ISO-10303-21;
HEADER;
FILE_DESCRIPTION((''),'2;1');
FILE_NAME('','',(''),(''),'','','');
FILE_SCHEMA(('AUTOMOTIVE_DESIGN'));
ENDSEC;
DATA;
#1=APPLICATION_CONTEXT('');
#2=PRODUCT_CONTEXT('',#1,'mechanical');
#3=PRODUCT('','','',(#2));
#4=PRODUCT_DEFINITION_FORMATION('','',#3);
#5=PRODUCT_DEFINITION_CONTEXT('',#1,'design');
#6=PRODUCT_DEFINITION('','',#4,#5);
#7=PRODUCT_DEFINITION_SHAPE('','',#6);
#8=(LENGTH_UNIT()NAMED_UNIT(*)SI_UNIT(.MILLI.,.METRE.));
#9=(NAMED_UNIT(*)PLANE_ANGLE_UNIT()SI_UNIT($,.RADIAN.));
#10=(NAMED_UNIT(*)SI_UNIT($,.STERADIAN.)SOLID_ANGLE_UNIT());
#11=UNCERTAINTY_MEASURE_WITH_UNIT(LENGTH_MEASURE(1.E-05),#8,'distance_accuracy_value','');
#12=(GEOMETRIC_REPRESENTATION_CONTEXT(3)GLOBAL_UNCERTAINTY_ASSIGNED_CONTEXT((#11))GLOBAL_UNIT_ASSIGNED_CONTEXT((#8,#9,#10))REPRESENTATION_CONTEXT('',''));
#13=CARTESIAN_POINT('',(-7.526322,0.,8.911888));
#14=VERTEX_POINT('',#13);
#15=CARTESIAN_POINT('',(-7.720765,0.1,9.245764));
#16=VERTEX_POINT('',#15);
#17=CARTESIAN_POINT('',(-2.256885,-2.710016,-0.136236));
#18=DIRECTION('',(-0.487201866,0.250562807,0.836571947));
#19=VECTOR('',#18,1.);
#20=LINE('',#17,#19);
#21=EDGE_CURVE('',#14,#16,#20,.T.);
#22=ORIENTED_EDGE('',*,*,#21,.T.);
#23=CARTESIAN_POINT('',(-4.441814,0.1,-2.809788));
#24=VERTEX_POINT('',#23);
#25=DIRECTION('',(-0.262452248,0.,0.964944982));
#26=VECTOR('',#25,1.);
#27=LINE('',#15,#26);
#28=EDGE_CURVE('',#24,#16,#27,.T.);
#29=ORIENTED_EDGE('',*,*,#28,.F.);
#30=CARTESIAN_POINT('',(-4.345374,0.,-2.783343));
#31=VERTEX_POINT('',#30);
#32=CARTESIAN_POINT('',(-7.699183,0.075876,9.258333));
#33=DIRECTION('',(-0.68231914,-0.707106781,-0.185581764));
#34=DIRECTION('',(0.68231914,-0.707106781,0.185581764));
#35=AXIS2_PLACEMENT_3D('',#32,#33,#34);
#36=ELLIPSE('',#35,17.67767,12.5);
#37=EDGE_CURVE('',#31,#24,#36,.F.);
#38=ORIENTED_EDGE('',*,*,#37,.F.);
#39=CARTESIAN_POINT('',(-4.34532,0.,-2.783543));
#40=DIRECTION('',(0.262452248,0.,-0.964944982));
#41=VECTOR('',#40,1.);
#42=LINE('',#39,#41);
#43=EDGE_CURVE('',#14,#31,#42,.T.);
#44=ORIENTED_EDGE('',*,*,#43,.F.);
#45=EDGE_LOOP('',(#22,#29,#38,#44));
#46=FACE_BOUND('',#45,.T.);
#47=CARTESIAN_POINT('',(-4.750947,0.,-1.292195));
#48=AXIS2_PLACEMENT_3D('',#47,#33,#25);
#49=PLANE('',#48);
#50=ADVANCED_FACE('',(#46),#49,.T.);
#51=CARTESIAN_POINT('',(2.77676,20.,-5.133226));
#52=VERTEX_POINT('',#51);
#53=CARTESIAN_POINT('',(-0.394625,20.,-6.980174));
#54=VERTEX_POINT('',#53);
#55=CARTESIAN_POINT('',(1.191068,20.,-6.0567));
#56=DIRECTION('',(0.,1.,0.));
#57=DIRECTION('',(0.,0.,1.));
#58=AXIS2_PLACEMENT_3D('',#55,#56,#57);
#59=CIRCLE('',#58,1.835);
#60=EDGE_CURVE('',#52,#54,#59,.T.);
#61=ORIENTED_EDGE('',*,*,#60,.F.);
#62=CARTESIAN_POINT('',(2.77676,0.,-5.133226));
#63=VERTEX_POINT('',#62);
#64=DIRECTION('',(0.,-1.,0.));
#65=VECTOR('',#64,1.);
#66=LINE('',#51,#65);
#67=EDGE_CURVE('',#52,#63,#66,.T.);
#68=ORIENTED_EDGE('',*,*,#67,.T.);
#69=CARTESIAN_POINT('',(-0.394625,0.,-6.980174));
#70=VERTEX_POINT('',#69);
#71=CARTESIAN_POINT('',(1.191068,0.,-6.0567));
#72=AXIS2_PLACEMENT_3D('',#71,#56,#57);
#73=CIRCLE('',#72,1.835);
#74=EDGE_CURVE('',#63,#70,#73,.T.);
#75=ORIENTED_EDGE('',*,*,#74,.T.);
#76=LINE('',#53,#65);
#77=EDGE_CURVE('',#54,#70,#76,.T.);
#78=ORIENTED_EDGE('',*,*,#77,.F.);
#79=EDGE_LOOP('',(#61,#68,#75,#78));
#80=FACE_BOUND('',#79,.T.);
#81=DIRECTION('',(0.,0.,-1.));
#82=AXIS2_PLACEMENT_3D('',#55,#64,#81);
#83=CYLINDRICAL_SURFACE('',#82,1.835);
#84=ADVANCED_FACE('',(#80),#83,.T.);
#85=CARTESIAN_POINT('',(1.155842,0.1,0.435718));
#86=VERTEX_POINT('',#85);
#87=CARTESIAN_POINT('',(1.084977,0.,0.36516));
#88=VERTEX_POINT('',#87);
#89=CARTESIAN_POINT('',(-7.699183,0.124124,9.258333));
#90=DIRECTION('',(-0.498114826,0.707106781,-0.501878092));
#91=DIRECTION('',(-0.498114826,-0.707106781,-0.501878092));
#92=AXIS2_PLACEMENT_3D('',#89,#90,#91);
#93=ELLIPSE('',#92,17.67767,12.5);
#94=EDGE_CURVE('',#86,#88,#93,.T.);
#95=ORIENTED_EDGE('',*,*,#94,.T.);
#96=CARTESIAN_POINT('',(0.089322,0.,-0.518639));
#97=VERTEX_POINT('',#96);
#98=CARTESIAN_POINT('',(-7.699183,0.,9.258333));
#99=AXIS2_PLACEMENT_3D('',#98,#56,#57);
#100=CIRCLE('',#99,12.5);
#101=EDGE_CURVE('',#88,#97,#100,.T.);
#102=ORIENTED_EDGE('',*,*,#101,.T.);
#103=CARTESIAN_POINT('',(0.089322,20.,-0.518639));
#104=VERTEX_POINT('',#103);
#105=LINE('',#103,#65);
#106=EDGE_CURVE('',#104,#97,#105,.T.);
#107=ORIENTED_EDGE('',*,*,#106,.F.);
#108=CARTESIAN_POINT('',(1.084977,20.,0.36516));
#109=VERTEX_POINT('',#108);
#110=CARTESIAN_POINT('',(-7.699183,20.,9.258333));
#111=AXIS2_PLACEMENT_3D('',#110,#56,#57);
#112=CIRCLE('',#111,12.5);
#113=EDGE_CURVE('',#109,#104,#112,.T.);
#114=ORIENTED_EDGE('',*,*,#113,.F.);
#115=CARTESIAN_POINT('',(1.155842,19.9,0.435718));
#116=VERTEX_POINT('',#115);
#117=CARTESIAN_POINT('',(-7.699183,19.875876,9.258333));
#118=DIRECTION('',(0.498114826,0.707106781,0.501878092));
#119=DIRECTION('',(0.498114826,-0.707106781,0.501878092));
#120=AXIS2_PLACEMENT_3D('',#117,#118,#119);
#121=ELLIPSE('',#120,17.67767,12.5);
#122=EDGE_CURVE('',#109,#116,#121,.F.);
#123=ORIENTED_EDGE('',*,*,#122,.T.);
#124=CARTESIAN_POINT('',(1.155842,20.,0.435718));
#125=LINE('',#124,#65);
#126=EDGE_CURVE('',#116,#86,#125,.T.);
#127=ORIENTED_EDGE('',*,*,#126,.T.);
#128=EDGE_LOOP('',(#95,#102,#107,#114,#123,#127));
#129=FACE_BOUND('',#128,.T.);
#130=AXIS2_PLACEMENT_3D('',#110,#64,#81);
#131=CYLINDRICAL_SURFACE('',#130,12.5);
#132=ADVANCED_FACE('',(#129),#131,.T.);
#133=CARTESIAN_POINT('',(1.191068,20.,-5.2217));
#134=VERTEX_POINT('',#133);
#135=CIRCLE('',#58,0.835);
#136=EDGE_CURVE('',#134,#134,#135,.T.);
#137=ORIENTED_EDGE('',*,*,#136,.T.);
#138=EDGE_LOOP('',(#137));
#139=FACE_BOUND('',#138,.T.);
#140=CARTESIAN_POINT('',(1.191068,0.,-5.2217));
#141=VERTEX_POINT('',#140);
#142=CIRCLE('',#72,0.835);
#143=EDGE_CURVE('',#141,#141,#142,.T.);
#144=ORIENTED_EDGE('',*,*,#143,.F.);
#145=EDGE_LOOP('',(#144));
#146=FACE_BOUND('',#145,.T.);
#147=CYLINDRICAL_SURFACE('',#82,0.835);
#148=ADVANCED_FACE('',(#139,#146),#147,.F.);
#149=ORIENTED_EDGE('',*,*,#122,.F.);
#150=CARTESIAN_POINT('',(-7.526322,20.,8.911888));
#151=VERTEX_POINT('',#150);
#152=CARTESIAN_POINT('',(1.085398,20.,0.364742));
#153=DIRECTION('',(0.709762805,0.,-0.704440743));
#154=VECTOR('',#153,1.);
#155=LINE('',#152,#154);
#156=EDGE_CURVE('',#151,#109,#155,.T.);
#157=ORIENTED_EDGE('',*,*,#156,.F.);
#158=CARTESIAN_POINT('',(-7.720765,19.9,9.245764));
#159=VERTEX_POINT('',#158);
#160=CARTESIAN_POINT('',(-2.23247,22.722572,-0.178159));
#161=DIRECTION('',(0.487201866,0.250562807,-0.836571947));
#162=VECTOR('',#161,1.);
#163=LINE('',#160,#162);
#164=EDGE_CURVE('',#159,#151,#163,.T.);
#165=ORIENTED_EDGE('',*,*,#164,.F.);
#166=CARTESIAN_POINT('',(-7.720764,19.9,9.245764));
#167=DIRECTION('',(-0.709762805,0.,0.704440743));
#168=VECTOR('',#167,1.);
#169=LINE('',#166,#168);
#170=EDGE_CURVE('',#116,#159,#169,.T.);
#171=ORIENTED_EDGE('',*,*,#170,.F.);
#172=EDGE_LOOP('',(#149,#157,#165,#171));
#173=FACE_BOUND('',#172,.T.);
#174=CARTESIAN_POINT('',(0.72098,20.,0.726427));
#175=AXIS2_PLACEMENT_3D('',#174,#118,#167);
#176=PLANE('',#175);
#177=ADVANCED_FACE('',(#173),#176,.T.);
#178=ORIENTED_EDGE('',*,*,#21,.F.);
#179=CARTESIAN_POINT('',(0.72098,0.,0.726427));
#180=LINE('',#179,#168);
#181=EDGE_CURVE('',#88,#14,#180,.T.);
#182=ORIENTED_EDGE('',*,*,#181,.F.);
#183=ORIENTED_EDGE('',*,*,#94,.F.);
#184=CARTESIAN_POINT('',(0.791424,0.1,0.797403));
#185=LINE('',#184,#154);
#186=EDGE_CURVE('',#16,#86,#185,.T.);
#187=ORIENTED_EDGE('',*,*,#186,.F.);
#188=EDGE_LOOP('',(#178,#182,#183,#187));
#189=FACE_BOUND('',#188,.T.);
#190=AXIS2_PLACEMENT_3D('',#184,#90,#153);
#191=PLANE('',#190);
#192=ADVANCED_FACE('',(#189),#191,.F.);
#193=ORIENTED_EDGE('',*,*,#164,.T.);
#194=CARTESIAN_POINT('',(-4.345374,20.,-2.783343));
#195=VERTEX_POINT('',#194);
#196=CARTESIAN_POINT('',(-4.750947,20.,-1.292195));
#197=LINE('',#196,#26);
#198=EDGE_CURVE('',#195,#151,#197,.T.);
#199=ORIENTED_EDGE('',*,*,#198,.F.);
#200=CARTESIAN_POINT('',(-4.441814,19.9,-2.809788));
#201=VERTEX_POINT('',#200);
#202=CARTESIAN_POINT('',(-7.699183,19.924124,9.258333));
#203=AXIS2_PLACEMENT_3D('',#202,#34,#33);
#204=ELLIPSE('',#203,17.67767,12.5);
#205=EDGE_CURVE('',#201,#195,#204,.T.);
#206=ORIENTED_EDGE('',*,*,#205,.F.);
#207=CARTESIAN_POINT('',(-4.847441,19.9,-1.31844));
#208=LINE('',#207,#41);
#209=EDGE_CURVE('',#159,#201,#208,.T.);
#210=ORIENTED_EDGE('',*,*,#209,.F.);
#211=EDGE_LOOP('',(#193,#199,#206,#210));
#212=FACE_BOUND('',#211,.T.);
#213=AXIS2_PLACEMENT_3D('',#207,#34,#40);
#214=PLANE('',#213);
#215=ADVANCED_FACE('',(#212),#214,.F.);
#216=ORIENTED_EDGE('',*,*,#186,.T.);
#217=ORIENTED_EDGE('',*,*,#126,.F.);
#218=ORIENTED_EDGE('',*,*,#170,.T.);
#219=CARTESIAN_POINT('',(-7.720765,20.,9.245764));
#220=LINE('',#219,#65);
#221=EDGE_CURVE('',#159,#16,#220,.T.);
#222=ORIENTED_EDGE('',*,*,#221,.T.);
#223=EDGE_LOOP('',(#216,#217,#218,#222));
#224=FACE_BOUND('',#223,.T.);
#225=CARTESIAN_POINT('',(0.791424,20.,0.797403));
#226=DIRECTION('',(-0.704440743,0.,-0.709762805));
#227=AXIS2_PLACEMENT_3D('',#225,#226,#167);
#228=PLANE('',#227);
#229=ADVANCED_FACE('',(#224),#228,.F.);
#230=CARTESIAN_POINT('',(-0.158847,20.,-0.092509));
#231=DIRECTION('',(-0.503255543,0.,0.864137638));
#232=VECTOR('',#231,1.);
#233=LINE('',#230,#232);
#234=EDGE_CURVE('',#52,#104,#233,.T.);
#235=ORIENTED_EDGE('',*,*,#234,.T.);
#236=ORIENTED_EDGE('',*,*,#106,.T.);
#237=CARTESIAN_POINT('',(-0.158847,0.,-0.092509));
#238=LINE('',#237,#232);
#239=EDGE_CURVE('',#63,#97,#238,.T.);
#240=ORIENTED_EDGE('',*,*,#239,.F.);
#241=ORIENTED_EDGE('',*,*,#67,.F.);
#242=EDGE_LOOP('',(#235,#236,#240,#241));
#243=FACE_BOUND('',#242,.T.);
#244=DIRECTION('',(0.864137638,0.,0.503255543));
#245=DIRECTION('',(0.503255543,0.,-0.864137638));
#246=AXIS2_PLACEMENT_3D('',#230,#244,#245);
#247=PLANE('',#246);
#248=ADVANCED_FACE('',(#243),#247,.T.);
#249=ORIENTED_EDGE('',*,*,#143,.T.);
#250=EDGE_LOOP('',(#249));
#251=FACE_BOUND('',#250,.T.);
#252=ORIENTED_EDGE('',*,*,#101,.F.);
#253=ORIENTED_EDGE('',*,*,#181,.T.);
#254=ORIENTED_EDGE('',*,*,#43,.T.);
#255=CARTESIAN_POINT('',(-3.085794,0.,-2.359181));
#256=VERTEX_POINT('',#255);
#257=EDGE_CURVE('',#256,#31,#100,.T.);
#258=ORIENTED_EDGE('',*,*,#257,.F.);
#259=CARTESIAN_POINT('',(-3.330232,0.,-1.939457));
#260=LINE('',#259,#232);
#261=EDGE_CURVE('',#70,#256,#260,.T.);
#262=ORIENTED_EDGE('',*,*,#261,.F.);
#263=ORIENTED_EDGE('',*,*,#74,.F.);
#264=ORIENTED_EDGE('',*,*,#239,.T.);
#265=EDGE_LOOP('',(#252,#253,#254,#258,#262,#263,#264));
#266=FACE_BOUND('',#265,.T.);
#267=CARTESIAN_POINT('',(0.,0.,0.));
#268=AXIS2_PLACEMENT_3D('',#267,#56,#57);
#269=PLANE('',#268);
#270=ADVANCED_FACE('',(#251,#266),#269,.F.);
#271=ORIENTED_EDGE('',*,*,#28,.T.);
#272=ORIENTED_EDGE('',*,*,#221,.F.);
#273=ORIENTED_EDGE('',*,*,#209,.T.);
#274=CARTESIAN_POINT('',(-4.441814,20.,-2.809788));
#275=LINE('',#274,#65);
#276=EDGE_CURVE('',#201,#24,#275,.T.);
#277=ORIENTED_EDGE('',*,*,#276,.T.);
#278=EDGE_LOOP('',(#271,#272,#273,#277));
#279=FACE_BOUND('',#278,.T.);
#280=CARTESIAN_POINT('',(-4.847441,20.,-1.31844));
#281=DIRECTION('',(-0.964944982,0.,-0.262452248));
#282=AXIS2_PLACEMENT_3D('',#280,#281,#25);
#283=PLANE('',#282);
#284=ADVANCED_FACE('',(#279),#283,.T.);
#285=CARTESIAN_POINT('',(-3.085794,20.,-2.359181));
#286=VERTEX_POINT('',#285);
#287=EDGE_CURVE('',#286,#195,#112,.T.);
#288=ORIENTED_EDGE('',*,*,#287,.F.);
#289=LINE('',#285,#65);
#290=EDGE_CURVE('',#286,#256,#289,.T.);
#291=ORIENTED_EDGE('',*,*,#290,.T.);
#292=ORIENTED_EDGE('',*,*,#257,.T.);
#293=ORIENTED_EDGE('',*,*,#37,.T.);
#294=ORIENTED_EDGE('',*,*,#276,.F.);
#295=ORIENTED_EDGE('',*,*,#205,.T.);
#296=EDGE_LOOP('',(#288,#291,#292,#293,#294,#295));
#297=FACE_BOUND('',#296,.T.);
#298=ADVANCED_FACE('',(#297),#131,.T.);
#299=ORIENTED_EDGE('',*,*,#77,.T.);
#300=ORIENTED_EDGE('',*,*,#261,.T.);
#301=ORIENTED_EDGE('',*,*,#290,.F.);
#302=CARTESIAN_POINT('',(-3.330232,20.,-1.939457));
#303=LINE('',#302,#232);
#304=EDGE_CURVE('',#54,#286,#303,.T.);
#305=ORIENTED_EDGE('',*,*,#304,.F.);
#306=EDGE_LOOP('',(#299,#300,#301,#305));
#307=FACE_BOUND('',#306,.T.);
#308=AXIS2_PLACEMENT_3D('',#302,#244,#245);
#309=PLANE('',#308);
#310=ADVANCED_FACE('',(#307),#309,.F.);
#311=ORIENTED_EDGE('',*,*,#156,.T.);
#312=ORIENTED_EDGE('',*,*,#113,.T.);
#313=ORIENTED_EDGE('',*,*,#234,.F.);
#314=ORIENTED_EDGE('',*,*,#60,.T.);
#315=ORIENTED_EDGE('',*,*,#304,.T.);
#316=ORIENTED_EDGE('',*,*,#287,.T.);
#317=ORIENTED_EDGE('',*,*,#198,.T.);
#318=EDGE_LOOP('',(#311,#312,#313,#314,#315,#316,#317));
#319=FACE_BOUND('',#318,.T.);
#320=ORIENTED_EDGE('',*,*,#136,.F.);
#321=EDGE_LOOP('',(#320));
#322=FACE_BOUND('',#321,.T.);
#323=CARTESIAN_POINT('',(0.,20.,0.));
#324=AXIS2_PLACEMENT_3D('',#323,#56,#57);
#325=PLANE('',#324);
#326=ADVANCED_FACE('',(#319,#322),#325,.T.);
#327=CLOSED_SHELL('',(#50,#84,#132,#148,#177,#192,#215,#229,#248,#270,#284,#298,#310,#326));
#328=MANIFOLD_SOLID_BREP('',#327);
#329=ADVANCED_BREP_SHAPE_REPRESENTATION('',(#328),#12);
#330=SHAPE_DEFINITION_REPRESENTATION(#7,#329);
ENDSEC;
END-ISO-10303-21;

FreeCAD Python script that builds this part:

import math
import FreeCAD as App
import Part
import Sketcher

V = App.Vector
Q = App.Units.Quantity


def edges_at(feature, points):
    """Names of the edges that pass closest to the given points."""
    edges = feature.Shape.Edges
    near = lambda p: min(range(len(edges)), key=lambda i: edges[i].distToShape(Part.Vertex(*p))[0])
    return sorted({f"Edge{near(p) + 1}" for p in points})

doc = App.newDocument("Part")
body = doc.addObject("PartDesign::Body", "Body")

# Sketch on XZ plane
sketch1 = doc.addObject("Sketcher::SketchObject", "Sketch")
body.addObject(sketch1)
sketch1.AttachmentSupport = (doc.XZ_Plane, [""])
sketch1.MapMode = "FlatFace"
sketch1.addGeometry(Part.LineSegment(V(0.14, -0.61, 0), V(2.78, -5.13, 0)), False)
sketch1.addGeometry(Part.ArcOfCircle(Part.Circle(V(1.19, -6.06, 0), V(0, 0, 1), 1.83), math.radians(-150), math.radians(30)), False)
sketch1.addGeometry(Part.LineSegment(V(-0.39, -6.98, 0), V(-3.03, -2.45, 0)), False)
sketch1.addGeometry(Part.LineSegment(V(-3.03, -2.45, 0), V(-3.09, -2.36, 0)), False)
sketch1.addGeometry(Part.ArcOfCircle(Part.Circle(V(-7.7, 9.26, 0), V(0, 0, 1), 12.5), math.radians(-74.89), math.radians(-68.34)), False)
sketch1.addGeometry(Part.LineSegment(V(-4.44, -2.81, 0), V(-7.72, 9.25, 0)), False)
sketch1.addGeometry(Part.LineSegment(V(-7.72, 9.25, 0), V(1.16, 0.44, 0)), False)
sketch1.addGeometry(Part.ArcOfCircle(Part.Circle(V(-7.7, 9.26, 0), V(0, 0, 1), 12.5), math.radians(-51.46), math.radians(-44.89)), False)
sketch1.addGeometry(Part.LineSegment(V(0.09, -0.52, 0), V(0.14, -0.61, 0)), False)
sketch1.addGeometry(Part.Circle(V(1.19, -6.06, 0), V(0, 0, 1), 0.83), False)
sketch1.addConstraint(Sketcher.Constraint("Tangent", 0, 2, 1, 2))
sketch1.addConstraint(Sketcher.Constraint("Tangent", 1, 1, 2, 1))
sketch1.addConstraint(Sketcher.Constraint("Coincident", 2, 2, 3, 1))
sketch1.addConstraint(Sketcher.Constraint("Coincident", 3, 2, 4, 2))
sketch1.addConstraint(Sketcher.Constraint("Coincident", 4, 1, 5, 1))
sketch1.addConstraint(Sketcher.Constraint("Coincident", 5, 2, 6, 1))
sketch1.addConstraint(Sketcher.Constraint("Coincident", 6, 2, 7, 2))
sketch1.addConstraint(Sketcher.Constraint("Coincident", 7, 1, 8, 1))
sketch1.addConstraint(Sketcher.Constraint("Coincident", 8, 2, 0, 1))
sketch1.addConstraint(Sketcher.Constraint("Coincident", 7, 3, 4, 3))
sketch1.addConstraint(Sketcher.Constraint("Coincident", 9, 3, 1, 3))
sketch1.addConstraint(Sketcher.Constraint("Equal", 4, 7))
sketch1.addConstraint(Sketcher.Constraint("Parallel", 0, 2))
sketch1.addConstraint(Sketcher.Constraint("Parallel", 2, 3))
sketch1.addConstraint(Sketcher.Constraint("Parallel", 3, 8))
sketch1.addConstraint(Sketcher.Constraint("Radius", 4, Q("12.5 mm")))
sketch1.addConstraint(Sketcher.Constraint("Diameter", 9, Q("1.67 mm")))
sketch1.addConstraint(Sketcher.Constraint("Radius", 1, Q("1.835 mm")))
sketch1.addConstraint(Sketcher.Constraint("DistanceY", 1, 3, -1, 1, Q("6.0567 mm")))
sketch1.addConstraint(Sketcher.Constraint("DistanceX", -1, 1, 8, 2, Q("0.1424 mm")))
sketch1.addConstraint(Sketcher.Constraint("DistanceY", 2, 2, 5, 2, Q("11.6996 mm")))
sketch1.addConstraint(Sketcher.Constraint("DistanceY", 3, 2, 6, 2, Q("2.794899 mm")))
sketch1.addConstraint(Sketcher.Constraint("Distance", 6, Q("12.50644 mm")))
sketch1.addConstraint(Sketcher.Constraint("Distance", 8, Q("0.105469 mm")))
sketch1.addConstraint(Sketcher.Constraint("DistanceX", -1, 1, 0, 2, Q("2.77676 mm")))
sketch1.addConstraint(Sketcher.Constraint("DistanceX", 2, 2, -1, 1, Q("3.030668 mm")))
sketch1.addConstraint(Sketcher.Constraint("DistanceY", 3, 2, -1, 1, Q("2.359181 mm")))
sketch1.addConstraint(Sketcher.Constraint("DistanceX", -1, 1, 6, 2, Q("1.155842 mm")))
sketch1.addConstraint(Sketcher.Constraint("DistanceX", 4, 1, 3, 2, Q("1.356021 mm")))
pad1 = doc.addObject("PartDesign::Pad", "Pad")
body.addObject(pad1)
pad1.Profile = sketch1
pad1.Length = 20
pad1.Reversed = True
doc.recompute()

chamfer = doc.addObject("PartDesign::Chamfer", "Chamfer")
body.addObject(chamfer)
chamfer.Base = (pad1, edges_at(pad1, [
    (-3.282, 20, 4.841),
    (-3.282, 0, 4.841),
    (-6.081, 20, 3.218),
    (-6.081, 0, 3.218),
]))
chamfer.Size = 0.1

doc.recompute()
